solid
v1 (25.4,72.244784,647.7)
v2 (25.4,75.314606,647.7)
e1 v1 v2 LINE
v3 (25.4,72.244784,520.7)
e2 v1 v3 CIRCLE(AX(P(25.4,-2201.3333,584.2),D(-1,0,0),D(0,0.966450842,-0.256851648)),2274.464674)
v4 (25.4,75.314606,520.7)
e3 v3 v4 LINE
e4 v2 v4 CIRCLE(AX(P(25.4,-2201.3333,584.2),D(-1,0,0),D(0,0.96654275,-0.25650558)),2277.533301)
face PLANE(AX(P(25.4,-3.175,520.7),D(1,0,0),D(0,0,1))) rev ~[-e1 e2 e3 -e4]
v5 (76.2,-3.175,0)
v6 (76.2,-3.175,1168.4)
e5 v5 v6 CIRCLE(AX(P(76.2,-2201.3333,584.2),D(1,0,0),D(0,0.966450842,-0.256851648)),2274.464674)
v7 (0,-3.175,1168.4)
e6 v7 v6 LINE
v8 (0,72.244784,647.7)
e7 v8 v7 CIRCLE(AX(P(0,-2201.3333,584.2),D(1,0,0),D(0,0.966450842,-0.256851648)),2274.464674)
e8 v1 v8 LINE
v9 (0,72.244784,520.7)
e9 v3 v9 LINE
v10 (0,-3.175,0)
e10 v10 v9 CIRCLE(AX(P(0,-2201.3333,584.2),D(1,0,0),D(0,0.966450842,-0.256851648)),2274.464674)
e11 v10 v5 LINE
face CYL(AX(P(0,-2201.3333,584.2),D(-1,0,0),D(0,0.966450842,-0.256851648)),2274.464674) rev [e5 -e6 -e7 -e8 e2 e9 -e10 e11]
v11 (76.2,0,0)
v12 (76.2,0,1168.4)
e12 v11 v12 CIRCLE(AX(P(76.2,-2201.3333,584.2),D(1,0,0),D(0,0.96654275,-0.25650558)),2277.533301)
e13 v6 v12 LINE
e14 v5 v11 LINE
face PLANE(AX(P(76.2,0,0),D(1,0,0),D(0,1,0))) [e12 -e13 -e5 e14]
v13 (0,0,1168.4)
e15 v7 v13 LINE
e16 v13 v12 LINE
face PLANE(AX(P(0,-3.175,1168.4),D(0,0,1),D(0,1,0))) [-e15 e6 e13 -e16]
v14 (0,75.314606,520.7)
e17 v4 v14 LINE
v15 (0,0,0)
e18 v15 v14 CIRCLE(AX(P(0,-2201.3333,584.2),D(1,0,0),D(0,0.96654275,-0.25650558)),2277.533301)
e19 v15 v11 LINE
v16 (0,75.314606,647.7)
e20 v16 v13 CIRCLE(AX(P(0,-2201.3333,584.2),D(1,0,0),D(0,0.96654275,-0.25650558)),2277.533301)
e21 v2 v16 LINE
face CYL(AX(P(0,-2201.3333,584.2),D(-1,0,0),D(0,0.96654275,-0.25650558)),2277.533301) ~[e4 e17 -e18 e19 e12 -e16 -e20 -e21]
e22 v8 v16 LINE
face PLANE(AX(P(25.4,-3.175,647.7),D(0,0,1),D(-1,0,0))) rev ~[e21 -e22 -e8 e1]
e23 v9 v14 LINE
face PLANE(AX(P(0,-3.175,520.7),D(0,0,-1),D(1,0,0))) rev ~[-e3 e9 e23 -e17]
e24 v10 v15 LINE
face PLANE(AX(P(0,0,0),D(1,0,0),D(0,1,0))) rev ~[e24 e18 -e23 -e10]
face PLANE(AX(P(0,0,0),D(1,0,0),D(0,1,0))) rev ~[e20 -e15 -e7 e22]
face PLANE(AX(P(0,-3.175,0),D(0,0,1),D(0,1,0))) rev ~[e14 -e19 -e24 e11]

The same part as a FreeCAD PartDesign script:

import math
import FreeCAD as App
import Part
import Sketcher
Q = App.Units.Quantity


def add_polygon(sketch, points):
    """Adds a closed chain of lines whose ends are joined by coincident constraints."""
    first, n = sketch.GeometryCount, len(points)
    for a, b in zip(points, points[1:] + points[:1]):
        sketch.addGeometry(Part.LineSegment(App.Vector(*a, 0), App.Vector(*b, 0)), False)
    for i in range(n):
        sketch.addConstraint(Sketcher.Constraint("Coincident", first + i, 2, first + (i + 1) % n, 1))

doc = App.newDocument("Part")
body = doc.addObject("PartDesign::Body", "Body")

sketch1 = doc.addObject("Sketcher::SketchObject", "Sketch")
body.addObject(sketch1)
sketch1.AttachmentSupport = (doc.YZ_Plane, [""])
sketch1.MapMode = "FlatFace"
sketch1.addGeometry([
    Part.LineSegment(App.Vector(-3.2, 0, 0), App.Vector(0, 0, 0)),
    Part.ArcOfCircle(Part.Circle(App.Vector(-2201.3, 584.2, 0), App.Vector(0, 0, 1), 2277.5), math.radians(-15), math.radians(15)),
    Part.LineSegment(App.Vector(0, 1168.4, 0), App.Vector(-3.2, 1168.4, 0)),
    Part.ArcOfCircle(Part.Circle(App.Vector(-2201.3, 584.2, 0), App.Vector(0, 0, 1), 2274.5), math.radians(-15), math.radians(15)),
], False)
sketch1.addConstraint([
    Sketcher.Constraint("Coincident", 0, 2, 1, 1),
    Sketcher.Constraint("Coincident", 1, 2, 2, 1),
    Sketcher.Constraint("Coincident", 2, 2, 3, 2),
    Sketcher.Constraint("Coincident", 3, 1, 0, 1),
    Sketcher.Constraint("Horizontal", 0),
    Sketcher.Constraint("Horizontal", 2),
    Sketcher.Constraint("Coincident", 0, 2, -1, 1),
    Sketcher.Constraint("Coincident", 3, 3, 1, 3),
    Sketcher.Constraint("DistanceY", -1, 1, 1, 3, Q("23 in")),
    Sketcher.Constraint("DistanceY", -1, 1, 2, 2, Q("46 in")),
    Sketcher.Constraint("DistanceX", 0, 1, 0, 2, Q("0.125 in")),
    Sketcher.Constraint("Radius", 1, Q("2277.5333 mm")),
])
pad1 = doc.addObject("PartDesign::Pad", "Pad")
body.addObject(pad1)
pad1.Profile = sketch1
pad1.Length = Q("3 in")

sketch2 = doc.addObject("Sketcher::SketchObject", "Sketch001")
body.addObject(sketch2)
sketch2.AttachmentSupport = (doc.XZ_Plane, [""])
sketch2.MapMode = "FlatFace"
sketch2.AttachmentOffset = App.Placement(App.Vector(0, 0, 0.125 * 25.4), App.Rotation())
add_polygon(sketch2, [(0, 521), (0, 648), (25, 648), (25, 521)])
sketch2.addConstraint([
    Sketcher.Constraint("Vertical", 0),
    Sketcher.Constraint("Horizontal", 1),
    Sketcher.Constraint("Vertical", 2),
    Sketcher.Constraint("Horizontal", 3),
    Sketcher.Constraint("PointOnObject", 0, 2, -2),
    Sketcher.Constraint("DistanceX", 1, 1, 1, 2, Q("1 in")),
    Sketcher.Constraint("DistanceY", 0, 1, 0, 2, Q("5 in")),
    Sketcher.Constraint("DistanceY", -1, 1, 2, 2, Q("20.5 in")),
])
pocket1 = doc.addObject("PartDesign::Pocket", "Pocket")
body.addObject(pocket1)
pocket1.Profile = sketch2
pocket1.Type = "ThroughAll"

doc.recompute()
